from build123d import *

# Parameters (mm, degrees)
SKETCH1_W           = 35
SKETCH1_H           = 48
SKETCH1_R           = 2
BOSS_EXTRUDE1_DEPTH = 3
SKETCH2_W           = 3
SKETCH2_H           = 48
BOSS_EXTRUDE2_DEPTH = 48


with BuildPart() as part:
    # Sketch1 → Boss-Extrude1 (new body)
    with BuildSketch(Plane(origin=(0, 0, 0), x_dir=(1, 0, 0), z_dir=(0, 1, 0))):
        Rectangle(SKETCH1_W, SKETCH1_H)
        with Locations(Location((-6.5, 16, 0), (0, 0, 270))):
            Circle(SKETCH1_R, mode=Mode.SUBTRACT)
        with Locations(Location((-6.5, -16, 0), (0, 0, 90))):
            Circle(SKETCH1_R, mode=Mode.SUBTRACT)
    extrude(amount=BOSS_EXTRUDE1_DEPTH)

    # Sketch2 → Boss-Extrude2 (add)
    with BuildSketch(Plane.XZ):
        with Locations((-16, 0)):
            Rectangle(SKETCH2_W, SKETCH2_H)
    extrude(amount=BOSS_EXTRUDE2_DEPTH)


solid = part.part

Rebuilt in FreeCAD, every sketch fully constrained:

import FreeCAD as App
import Part
import Sketcher

V = App.Vector

doc = App.newDocument("Part")
body = doc.addObject("PartDesign::Body", "Body")

sketch1 = body.newObject("Sketcher::SketchObject", "Sketch")
sketch1.AttachmentSupport = (doc.getObject("XZ_Plane"), [""])
sketch1.MapMode = "FlatFace"
sketch1.addGeometry([
    Part.LineSegment(V(-17.5, -24, 0), V(-17.5, 24, 0)),
    Part.LineSegment(V(-17.5, 24, 0), V(17.5, 24, 0)),
    Part.LineSegment(V(17.5, 24, 0), V(17.5, -24, 0)),
    Part.LineSegment(V(17.5, -24, 0), V(-17.5, -24, 0)),
    Part.Circle(V(-6.5, 16, 0), V(0, 0, 1), 2),
    Part.Circle(V(-6.5, -16, 0), V(0, 0, 1), 2),
], False)
sketch1.addConstraint([
    Sketcher.Constraint("Coincident", 0, 2, 1, 1),
    Sketcher.Constraint("Coincident", 1, 2, 2, 1),
    Sketcher.Constraint("Coincident", 2, 2, 3, 1),
    Sketcher.Constraint("Coincident", 3, 2, 0, 1),
    Sketcher.Constraint("Vertical", 0),
    Sketcher.Constraint("Horizontal", 1),
    Sketcher.Constraint("Vertical", 2),
    Sketcher.Constraint("Horizontal", 3),
    Sketcher.Constraint("Equal", 4, 5),
    Sketcher.Constraint("Symmetric", 0, 2, 2, 2, -1, 1),
    Sketcher.Constraint("Symmetric", 4, 3, 5, 3, -1),
    Sketcher.Constraint("Diameter", 4, 4.0),
    Sketcher.Constraint("DistanceX", 1, 1, 1, 2, 35.0),
    Sketcher.Constraint("DistanceY", 0, 1, 0, 2, 48.0),
    Sketcher.Constraint("DistanceY", -1, 1, 4, 3, 16.0),
    Sketcher.Constraint("DistanceX", 0, 2, 4, 3, 11.0),
])
pad1 = body.newObject("PartDesign::Pad", "Pad")
pad1.Profile = sketch1
pad1.Length = 3
pad1.Reversed = True

sketch2 = body.newObject("Sketcher::SketchObject", "Sketch001")
sketch2.AttachmentSupport = (doc.getObject("XZ_Plane"), [""])
sketch2.MapMode = "FlatFace"
sketch2.addGeometry([
    Part.LineSegment(V(-17.5, 24, 0), V(-17.5, -24, 0)),
    Part.LineSegment(V(-17.5, -24, 0), V(-14.5, -24, 0)),
    Part.LineSegment(V(-14.5, -24, 0), V(-14.5, 24, 0)),
    Part.LineSegment(V(-14.5, 24, 0), V(-17.5, 24, 0)),
], False)
sketch2.addConstraint([
    Sketcher.Constraint("Coincident", 0, 2, 1, 1),
    Sketcher.Constraint("Coincident", 1, 2, 2, 1),
    Sketcher.Constraint("Coincident", 2, 2, 3, 1),
    Sketcher.Constraint("Coincident", 3, 2, 0, 1),
    Sketcher.Constraint("Vertical", 0),
    Sketcher.Constraint("Horizontal", 1),
    Sketcher.Constraint("Vertical", 2),
    Sketcher.Constraint("Horizontal", 3),
    Sketcher.Constraint("DistanceX", 1, 1, 1, 2, 3.0),
    Sketcher.Constraint("DistanceY", 0, 2, 0, 1, 48.0),
    Sketcher.Constraint("DistanceY", 0, 2, -1, 1, 24.0),
    Sketcher.Constraint("DistanceX", 0, 2, -1, 1, 17.5),
])
pad2 = body.newObject("PartDesign::Pad", "Pad001")
pad2.Profile = sketch2
pad2.Length = 48

doc.recompute()
